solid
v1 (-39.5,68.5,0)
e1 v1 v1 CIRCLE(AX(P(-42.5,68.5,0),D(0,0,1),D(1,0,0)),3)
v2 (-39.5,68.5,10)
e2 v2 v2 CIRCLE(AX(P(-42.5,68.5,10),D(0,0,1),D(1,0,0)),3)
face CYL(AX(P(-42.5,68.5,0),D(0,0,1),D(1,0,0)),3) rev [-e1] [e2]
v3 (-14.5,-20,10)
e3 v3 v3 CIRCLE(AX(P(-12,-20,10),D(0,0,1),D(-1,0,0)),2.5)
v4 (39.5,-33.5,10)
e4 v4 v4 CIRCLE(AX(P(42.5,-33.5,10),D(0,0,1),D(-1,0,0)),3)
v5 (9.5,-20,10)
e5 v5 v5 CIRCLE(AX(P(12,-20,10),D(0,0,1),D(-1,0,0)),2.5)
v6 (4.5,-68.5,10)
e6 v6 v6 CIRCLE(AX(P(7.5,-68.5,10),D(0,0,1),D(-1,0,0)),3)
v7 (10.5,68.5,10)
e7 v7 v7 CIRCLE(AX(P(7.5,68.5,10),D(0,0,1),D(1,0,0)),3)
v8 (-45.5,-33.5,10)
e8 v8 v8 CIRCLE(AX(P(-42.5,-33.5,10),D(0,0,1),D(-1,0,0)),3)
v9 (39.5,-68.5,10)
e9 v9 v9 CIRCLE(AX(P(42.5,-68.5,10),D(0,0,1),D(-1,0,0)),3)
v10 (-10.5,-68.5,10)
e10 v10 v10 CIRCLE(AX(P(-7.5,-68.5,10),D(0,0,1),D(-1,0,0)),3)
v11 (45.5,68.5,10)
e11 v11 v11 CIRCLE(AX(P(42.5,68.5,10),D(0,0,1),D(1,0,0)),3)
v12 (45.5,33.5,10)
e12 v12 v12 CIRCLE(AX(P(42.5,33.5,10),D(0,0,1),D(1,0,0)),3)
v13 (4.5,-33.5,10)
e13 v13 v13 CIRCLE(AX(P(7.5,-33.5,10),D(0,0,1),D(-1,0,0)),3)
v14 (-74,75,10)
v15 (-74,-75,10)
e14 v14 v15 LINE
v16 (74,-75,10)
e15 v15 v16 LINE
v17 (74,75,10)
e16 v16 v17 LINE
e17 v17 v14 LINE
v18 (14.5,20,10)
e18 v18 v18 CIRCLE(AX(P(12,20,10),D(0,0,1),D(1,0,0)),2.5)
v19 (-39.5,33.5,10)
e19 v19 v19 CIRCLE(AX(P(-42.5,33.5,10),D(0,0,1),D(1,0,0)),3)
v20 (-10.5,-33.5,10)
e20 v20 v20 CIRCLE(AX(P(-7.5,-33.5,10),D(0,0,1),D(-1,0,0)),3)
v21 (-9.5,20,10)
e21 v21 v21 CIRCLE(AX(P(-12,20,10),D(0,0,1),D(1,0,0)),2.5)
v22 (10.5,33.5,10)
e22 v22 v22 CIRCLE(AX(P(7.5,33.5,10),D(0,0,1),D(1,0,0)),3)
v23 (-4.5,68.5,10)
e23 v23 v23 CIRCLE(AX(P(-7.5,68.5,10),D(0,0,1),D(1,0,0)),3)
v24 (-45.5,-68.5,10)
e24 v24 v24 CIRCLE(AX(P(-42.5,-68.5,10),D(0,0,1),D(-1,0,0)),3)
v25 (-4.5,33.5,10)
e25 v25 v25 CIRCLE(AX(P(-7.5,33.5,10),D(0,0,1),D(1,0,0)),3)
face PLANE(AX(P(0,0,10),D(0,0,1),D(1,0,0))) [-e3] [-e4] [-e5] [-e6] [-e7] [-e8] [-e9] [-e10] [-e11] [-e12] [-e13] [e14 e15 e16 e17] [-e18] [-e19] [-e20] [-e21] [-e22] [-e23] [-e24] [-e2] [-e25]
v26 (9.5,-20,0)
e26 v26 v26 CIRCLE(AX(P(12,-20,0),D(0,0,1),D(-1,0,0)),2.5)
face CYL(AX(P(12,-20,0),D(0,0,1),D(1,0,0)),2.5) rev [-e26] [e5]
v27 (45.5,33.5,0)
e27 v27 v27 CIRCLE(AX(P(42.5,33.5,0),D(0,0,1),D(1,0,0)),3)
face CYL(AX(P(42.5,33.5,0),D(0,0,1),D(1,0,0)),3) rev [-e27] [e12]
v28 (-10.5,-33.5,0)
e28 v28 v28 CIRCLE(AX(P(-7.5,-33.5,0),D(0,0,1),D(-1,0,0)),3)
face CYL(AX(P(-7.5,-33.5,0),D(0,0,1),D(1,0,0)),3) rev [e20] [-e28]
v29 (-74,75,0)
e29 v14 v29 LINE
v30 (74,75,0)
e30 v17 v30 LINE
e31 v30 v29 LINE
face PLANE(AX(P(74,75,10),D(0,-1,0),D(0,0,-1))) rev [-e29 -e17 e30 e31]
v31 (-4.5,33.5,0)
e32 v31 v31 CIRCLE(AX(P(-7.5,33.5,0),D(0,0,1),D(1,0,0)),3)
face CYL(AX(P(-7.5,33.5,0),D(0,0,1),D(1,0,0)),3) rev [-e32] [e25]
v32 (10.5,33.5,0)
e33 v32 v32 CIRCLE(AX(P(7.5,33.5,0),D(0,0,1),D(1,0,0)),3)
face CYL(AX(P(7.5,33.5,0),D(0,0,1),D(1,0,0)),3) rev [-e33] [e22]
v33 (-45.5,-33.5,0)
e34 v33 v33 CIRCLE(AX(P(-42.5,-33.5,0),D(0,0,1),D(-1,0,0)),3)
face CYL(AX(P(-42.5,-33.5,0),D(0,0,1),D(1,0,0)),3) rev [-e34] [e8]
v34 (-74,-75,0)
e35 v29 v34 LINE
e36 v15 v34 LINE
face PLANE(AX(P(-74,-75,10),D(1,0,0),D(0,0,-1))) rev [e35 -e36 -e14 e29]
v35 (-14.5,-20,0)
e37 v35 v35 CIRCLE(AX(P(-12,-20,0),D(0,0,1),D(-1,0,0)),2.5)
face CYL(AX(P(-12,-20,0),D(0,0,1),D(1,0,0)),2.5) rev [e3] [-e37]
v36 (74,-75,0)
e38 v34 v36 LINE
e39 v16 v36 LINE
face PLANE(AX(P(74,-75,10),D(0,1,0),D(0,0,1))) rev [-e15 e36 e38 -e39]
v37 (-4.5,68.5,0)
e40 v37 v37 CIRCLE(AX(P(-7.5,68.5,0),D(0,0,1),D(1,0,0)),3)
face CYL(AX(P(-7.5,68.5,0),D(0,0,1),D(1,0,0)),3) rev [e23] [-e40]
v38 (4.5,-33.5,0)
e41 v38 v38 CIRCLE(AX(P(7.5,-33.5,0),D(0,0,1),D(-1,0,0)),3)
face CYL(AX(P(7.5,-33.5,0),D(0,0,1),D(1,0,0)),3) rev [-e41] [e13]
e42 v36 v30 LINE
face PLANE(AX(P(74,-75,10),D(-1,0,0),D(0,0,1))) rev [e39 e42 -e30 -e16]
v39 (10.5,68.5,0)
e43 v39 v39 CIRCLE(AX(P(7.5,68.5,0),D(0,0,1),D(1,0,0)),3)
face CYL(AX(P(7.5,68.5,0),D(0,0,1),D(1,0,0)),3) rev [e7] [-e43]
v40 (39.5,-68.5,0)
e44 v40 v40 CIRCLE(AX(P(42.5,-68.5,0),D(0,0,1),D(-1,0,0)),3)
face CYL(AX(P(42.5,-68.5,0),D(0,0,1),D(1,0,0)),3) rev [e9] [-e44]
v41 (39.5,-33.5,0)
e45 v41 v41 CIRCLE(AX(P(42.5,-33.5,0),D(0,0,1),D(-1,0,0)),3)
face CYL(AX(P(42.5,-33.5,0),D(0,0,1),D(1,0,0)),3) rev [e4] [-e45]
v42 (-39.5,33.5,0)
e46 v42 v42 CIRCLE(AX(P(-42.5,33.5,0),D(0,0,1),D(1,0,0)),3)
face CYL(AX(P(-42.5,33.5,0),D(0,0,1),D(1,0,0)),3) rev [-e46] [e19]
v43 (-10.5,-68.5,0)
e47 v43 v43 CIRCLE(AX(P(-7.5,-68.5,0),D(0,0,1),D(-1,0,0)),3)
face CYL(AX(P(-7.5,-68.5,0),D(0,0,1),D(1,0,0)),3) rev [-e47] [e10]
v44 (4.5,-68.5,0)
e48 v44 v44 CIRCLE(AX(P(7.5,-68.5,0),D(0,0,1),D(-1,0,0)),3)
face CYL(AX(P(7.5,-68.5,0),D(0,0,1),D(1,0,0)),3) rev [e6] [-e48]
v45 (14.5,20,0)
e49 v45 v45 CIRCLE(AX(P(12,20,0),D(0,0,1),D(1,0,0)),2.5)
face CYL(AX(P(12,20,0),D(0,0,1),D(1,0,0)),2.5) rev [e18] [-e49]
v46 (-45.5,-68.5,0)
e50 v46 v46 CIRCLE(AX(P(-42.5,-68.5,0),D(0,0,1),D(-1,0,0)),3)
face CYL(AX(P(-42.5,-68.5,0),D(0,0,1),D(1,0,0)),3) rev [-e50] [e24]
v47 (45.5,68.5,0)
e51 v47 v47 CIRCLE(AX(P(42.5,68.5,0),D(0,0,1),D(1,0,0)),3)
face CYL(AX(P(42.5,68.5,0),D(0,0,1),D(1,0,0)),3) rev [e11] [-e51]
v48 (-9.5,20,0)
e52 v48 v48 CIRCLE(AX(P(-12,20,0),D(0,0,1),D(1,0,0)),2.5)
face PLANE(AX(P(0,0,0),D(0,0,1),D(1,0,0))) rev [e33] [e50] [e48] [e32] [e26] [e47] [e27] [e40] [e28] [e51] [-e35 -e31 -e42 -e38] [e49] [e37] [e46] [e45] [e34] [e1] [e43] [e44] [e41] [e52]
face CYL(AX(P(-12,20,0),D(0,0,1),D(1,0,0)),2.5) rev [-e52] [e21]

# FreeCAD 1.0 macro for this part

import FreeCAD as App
import Part
import Sketcher
Q = App.Units.Quantity

doc = App.newDocument("Part")
body = doc.addObject("PartDesign::Body", "Body")

# Sketch on XY plane
sketch1 = body.newObject("Sketcher::SketchObject", "Sketch")
sketch1.AttachmentSupport = (doc.getObject("XY_Plane"), [""])
sketch1.MapMode = "FlatFace"
sketch1.addGeometry([
    Part.LineSegment(App.Vector(-74, 75, 0), App.Vector(-74, -75, 0)),
    Part.LineSegment(App.Vector(-74, -75, 0), App.Vector(74, -75, 0)),
    Part.LineSegment(App.Vector(74, -75, 0), App.Vector(74, 75, 0)),
    Part.LineSegment(App.Vector(74, 75, 0), App.Vector(-74, 75, 0)),
], False)
sketch1.addConstraint([
    Sketcher.Constraint("Coincident", 0, 2, 1, 1),
    Sketcher.Constraint("Coincident", 1, 2, 2, 1),
    Sketcher.Constraint("Coincident", 2, 2, 3, 1),
    Sketcher.Constraint("Coincident", 3, 2, 0, 1),
    Sketcher.Constraint("Vertical", 0),
    Sketcher.Constraint("Horizontal", 1),
    Sketcher.Constraint("Vertical", 2),
    Sketcher.Constraint("Horizontal", 3),
    Sketcher.Constraint("Symmetric", 0, 2, 2, 2, -1, 1),
    Sketcher.Constraint("DistanceX", 1, 1, 1, 2, Q("148 mm")),
    Sketcher.Constraint("DistanceY", 0, 2, 0, 1, Q("150 mm")),
])
pad1 = body.newObject("PartDesign::Pad", "Pad")
pad1.Profile = sketch1
pad1.Length = 10

# Sketch on XY plane
sketch2 = body.newObject("Sketcher::SketchObject", "Sketch001")
sketch2.AttachmentSupport = (doc.getObject("XY_Plane"), [""])
sketch2.MapMode = "FlatFace"
sketch2.AttachmentOffset = App.Placement(App.Vector(0, 0, 10), App.Rotation())
sketch2.addGeometry([
    Part.Circle(App.Vector(-42.5, 68.5, 0), App.Vector(0, 0, 1), 3),  # 0
    Part.Circle(App.Vector(-42.5, 33.5, 0), App.Vector(0, 0, 1), 3),  # 1
    Part.Circle(App.Vector(42.5, 33.5, 0), App.Vector(0, 0, 1), 3),  # 2
    Part.Circle(App.Vector(42.5, 68.5, 0), App.Vector(0, 0, 1), 3),  # 3
    Part.Circle(App.Vector(-7.5, 68.5, 0), App.Vector(0, 0, 1), 3),  # 4
    Part.Circle(App.Vector(7.5, 68.5, 0), App.Vector(0, 0, 1), 3),  # 5
    Part.Circle(App.Vector(-7.5, 33.5, 0), App.Vector(0, 0, 1), 3),  # 6
    Part.Circle(App.Vector(7.5, 33.5, 0), App.Vector(0, 0, 1), 3),  # 7
    Part.Circle(App.Vector(-12, 20, 0), App.Vector(0, 0, 1), 2.5),  # 8
    Part.Circle(App.Vector(12, 20, 0), App.Vector(0, 0, 1), 2.5),  # 9
    Part.Circle(App.Vector(12, -20, 0), App.Vector(0, 0, 1), 2.5),  # 10
    Part.Circle(App.Vector(-12, -20, 0), App.Vector(0, 0, 1), 2.5),  # 11
    Part.Circle(App.Vector(7.5, -33.5, 0), App.Vector(0, 0, 1), 3),  # 12
    Part.Circle(App.Vector(-7.5, -33.5, 0), App.Vector(0, 0, 1), 3),  # 13
    Part.Circle(App.Vector(7.5, -68.5, 0), App.Vector(0, 0, 1), 3),  # 14
    Part.Circle(App.Vector(-7.5, -68.5, 0), App.Vector(0, 0, 1), 3),  # 15
    Part.Circle(App.Vector(42.5, -68.5, 0), App.Vector(0, 0, 1), 3),  # 16
    Part.Circle(App.Vector(42.5, -33.5, 0), App.Vector(0, 0, 1), 3),  # 17
    Part.Circle(App.Vector(-42.5, -33.5, 0), App.Vector(0, 0, 1), 3),  # 18
    Part.Circle(App.Vector(-42.5, -68.5, 0), App.Vector(0, 0, 1), 3),  # 19
], False)
sketch2.addConstraint([
    Sketcher.Constraint("Equal", 0, 1),
    Sketcher.Constraint("Equal", 1, 2),
    Sketcher.Constraint("Equal", 2, 3),
    Sketcher.Constraint("Equal", 3, 4),
    Sketcher.Constraint("Equal", 4, 5),
    Sketcher.Constraint("Equal", 5, 6),
    Sketcher.Constraint("Equal", 6, 7),
    Sketcher.Constraint("Equal", 8, 9),
    Sketcher.Constraint("Equal", 9, 10),
    Sketcher.Constraint("Equal", 10, 11),
    Sketcher.Constraint("Equal", 7, 12),
    Sketcher.Constraint("Equal", 12, 13),
    Sketcher.Constraint("Equal", 13, 14),
    Sketcher.Constraint("Equal", 14, 15),
    Sketcher.Constraint("Equal", 15, 16),
    Sketcher.Constraint("Equal", 16, 17),
    Sketcher.Constraint("Equal", 17, 18),
    Sketcher.Constraint("Equal", 18, 19),
    Sketcher.Constraint("Symmetric", 8, 3, 10, 3, -1, 1),
    Sketcher.Constraint("Symmetric", 9, 3, 11, 3, -1, 1),
    Sketcher.Constraint("Symmetric", 6, 3, 12, 3, -1, 1),
    Sketcher.Constraint("Symmetric", 7, 3, 13, 3, -1, 1),
    Sketcher.Constraint("Symmetric", 4, 3, 14, 3, -1, 1),
    Sketcher.Constraint("Symmetric", 5, 3, 15, 3, -1, 1),
    Sketcher.Constraint("Symmetric", 0, 3, 16, 3, -1, 1),
    Sketcher.Constraint("Symmetric", 1, 3, 17, 3, -1, 1),
    Sketcher.Constraint("Symmetric", 2, 3, 18, 3, -1, 1),
    Sketcher.Constraint("Symmetric", 3, 3, 19, 3, -1, 1),
    Sketcher.Constraint("Symmetric", 1, 3, 2, 3, -2),
    Sketcher.Constraint("Symmetric", 0, 3, 3, 3, -2),
    Sketcher.Constraint("Symmetric", 4, 3, 5, 3, -2),
    Sketcher.Constraint("Symmetric", 6, 3, 7, 3, -2),
    Sketcher.Constraint("Symmetric", 8, 3, 9, 3, -2),
    Sketcher.Constraint("Horizontal", 3, 3, 4, 3),
    Sketcher.Constraint("Horizontal", 2, 3, 6, 3),
    Sketcher.Constraint("Vertical", 0, 3, 1, 3),
    Sketcher.Constraint("Vertical", 4, 3, 6, 3),
    Sketcher.Constraint("Diameter", 0, Q("6 mm")),
    Sketcher.Constraint("Diameter", 8, Q("5 mm")),
    Sketcher.Constraint("DistanceX", 8, 3, -1, 1, Q("12 mm")),
    Sketcher.Constraint("DistanceY", -1, 1, 8, 3, Q("20 mm")),
    Sketcher.Constraint("DistanceY", 1, 3, 0, 3, Q("35 mm")),
    Sketcher.Constraint("DistanceX", 1, 3, 2, 3, Q("85 mm")),
    Sketcher.Constraint("DistanceX", 0, 3, 4, 3, Q("35 mm")),
    Sketcher.Constraint("DistanceY", 12, 3, 7, 3, Q("67 mm")),
])
pocket1 = body.newObject("PartDesign::Pocket", "Pocket")
pocket1.Profile = sketch2
pocket1.Type = "ThroughAll"

doc.recompute()
